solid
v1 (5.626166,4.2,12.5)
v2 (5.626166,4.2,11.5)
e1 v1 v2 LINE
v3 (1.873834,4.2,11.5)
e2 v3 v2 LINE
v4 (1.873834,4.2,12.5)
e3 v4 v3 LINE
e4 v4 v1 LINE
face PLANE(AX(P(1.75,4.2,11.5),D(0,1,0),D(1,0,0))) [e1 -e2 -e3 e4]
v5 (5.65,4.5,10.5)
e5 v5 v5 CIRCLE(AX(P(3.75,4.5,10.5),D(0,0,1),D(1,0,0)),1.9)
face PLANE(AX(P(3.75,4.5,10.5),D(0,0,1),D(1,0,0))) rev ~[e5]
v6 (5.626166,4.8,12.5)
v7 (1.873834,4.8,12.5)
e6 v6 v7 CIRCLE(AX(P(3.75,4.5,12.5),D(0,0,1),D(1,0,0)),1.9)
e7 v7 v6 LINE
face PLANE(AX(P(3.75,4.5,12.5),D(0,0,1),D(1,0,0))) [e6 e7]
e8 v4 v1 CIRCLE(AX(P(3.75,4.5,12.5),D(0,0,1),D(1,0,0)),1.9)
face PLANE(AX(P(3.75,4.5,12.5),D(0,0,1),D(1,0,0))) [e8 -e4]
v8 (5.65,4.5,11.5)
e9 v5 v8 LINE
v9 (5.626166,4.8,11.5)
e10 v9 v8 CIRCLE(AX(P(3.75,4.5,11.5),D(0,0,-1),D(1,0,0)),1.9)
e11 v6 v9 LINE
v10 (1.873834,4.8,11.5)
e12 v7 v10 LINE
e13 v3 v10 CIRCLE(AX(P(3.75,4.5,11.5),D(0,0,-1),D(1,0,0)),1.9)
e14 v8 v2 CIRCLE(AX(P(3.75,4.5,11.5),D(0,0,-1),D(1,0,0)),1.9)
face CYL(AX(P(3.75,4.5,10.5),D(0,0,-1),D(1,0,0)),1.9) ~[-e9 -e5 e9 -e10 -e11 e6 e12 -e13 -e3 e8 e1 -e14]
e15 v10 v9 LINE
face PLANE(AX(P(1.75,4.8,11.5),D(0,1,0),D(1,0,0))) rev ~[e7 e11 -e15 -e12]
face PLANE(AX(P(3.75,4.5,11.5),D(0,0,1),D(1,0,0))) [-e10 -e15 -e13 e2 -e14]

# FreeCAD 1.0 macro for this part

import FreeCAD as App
import Part
import Sketcher

doc = App.newDocument("Part")
body = doc.addObject("PartDesign::Body", "Body")

# Sketch on XY plane
sketch1 = body.newObject("Sketcher::SketchObject", "Sketch")
sketch1.AttachmentSupport = (doc.getObject("XY_Plane"), [""])
sketch1.MapMode = "FlatFace"
sketch1.AttachmentOffset = App.Placement(App.Vector(0, 0, 1), App.Rotation())
sketch1.addGeometry([
    Part.LineSegment(App.Vector(-2, 0.3, 0), App.Vector(-2, -0.3, 0)),
    Part.LineSegment(App.Vector(-2, -0.3, 0), App.Vector(2, -0.3, 0)),
    Part.LineSegment(App.Vector(2, -0.3, 0), App.Vector(2, 0.3, 0)),
    Part.LineSegment(App.Vector(2, 0.3, 0), App.Vector(-2, 0.3, 0)),
], False)
sketch1.addConstraint([
    Sketcher.Constraint("Coincident", 0, 2, 1, 1),
    Sketcher.Constraint("Coincident", 1, 2, 2, 1),
    Sketcher.Constraint("Coincident", 2, 2, 3, 1),
    Sketcher.Constraint("Coincident", 3, 2, 0, 1),
    Sketcher.Constraint("Vertical", 0),
    Sketcher.Constraint("Horizontal", 1),
    Sketcher.Constraint("Vertical", 2),
    Sketcher.Constraint("Horizontal", 3),
    Sketcher.Constraint("Symmetric", 0, 2, 2, 2, -1, 1),
    Sketcher.Constraint("DistanceX", 1, 1, 1, 2, 4.0),
    Sketcher.Constraint("DistanceY", 0, 2, 0, 1, 0.6),
])
pad1 = body.newObject("PartDesign::Pad", "Pad")
pad1.Profile = sketch1
pad1.Length = 1
body2 = doc.addObject("PartDesign::Body", "Body001")

# Sketch on XY plane
sketch2 = body2.newObject("Sketcher::SketchObject", "Sketch001")
sketch2.AttachmentSupport = (doc.getObject("XY_Plane001"), [""])
sketch2.MapMode = "FlatFace"
sketch2.addGeometry(Part.Circle(App.Vector(0, 0, 0), App.Vector(0, 0, 1), 1.9), False)
sketch2.addConstraint([
    Sketcher.Constraint("Coincident", 0, 3, -1, 1),
    Sketcher.Constraint("Diameter", 0, 3.8),
])
pad2 = body2.newObject("PartDesign::Pad", "Pad001")
pad2.Profile = sketch2
pad2.Length = 2
doc.recompute()

boolean = body2.newObject("PartDesign::Boolean", "Boolean")
boolean.Type = "Cut"
boolean.addObjects([body])
body3 = doc.addObject("PartDesign::Body", "Body002")
doc.recompute()

body2.Placement = App.Placement(App.Vector(3.75, 4.5, 10.5), App.Rotation(App.Vector(0, 0, 1), 0))
boolean2 = body3.newObject("PartDesign::Boolean", "Boolean001")
boolean2.Type = "Fuse"
boolean2.addObjects([body2])

doc.recompute()
